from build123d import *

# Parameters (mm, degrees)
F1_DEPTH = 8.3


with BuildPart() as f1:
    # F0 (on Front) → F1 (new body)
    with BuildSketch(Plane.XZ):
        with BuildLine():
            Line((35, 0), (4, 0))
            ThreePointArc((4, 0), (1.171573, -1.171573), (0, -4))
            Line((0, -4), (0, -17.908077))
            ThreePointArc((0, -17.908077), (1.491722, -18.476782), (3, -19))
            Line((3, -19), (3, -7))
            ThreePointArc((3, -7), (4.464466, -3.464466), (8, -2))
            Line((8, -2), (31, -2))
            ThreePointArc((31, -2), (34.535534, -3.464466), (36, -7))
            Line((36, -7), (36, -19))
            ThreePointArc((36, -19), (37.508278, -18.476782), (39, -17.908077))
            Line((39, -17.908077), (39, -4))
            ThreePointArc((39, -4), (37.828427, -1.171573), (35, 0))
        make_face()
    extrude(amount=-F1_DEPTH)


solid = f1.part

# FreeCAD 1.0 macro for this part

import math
import FreeCAD as App
import Part
import Sketcher

V = App.Vector

doc = App.newDocument("Part")
body = doc.addObject("PartDesign::Body", "Body")

sketch1 = body.newObject("Sketcher::SketchObject", "Sketch")
sketch1.AttachmentSupport = (doc.getObject("XZ_Plane"), [""])
sketch1.MapMode = "FlatFace"
sketch1.addGeometry([
    Part.LineSegment(V(35, 0, 0), V(4, 0, 0)),
    Part.ArcOfCircle(Part.Circle(V(4, -4, 0), V(0, 0, 1), 4), math.radians(90.000006), math.radians(179.999994)),
    Part.LineSegment(V(0, -4, 0), V(0, -17.908077, 0)),
    Part.ArcOfCircle(Part.Circle(V(19.499748, 30.999307, 0), V(0, 0, 1), 52.651424), math.radians(-111.737548), math.radians(-108.262866)),
    Part.LineSegment(V(3, -19, 0), V(3, -7, 0)),
    Part.ArcOfCircle(Part.Circle(V(8, -7, 0), V(0, 0, 1), 5), math.radians(89.999996), math.radians(180.000004)),
    Part.LineSegment(V(8, -2, 0), V(31, -2, 0)),
    Part.ArcOfCircle(Part.Circle(V(31, -7, 0), V(0, 0, 1), 5), math.radians(-0.000004), math.radians(90.000004)),
    Part.LineSegment(V(36, -7, 0), V(36, -19, 0)),
    Part.ArcOfCircle(Part.Circle(V(19.500252, 30.999307, 0), V(0, 0, 1), 52.651424), math.radians(-71.737134), math.radians(-68.262452)),
    Part.LineSegment(V(39, -17.908077, 0), V(39, -4, 0)),
    Part.ArcOfCircle(Part.Circle(V(35, -4, 0), V(0, 0, 1), 4), math.radians(0.000006), math.radians(89.999994)),
], False)
sketch1.addConstraint([
    Sketcher.Constraint("Tangent", 0, 2, 1, 1),
    Sketcher.Constraint("Tangent", 1, 2, 2, 1),
    Sketcher.Constraint("Coincident", 2, 2, 3, 1),
    Sketcher.Constraint("Coincident", 3, 2, 4, 1),
    Sketcher.Constraint("Tangent", 4, 2, 5, 2),
    Sketcher.Constraint("Tangent", 5, 1, 6, 1),
    Sketcher.Constraint("Tangent", 6, 2, 7, 2),
    Sketcher.Constraint("Tangent", 7, 1, 8, 1),
    Sketcher.Constraint("Coincident", 8, 2, 9, 1),
    Sketcher.Constraint("Coincident", 9, 2, 10, 1),
    Sketcher.Constraint("Tangent", 10, 2, 11, 1),
    Sketcher.Constraint("Tangent", 11, 2, 0, 1),
    Sketcher.Constraint("Horizontal", 0),
    Sketcher.Constraint("Vertical", 2),
    Sketcher.Constraint("Vertical", 4),
    Sketcher.Constraint("Horizontal", 6),
    Sketcher.Constraint("Vertical", 8),
    Sketcher.Constraint("Vertical", 10),
    Sketcher.Constraint("Equal", 5, 7),
    Sketcher.Constraint("Equal", 3, 9),
    Sketcher.Constraint("Equal", 1, 11),
    Sketcher.Constraint("PointOnObject", 0, 2, -1),
    Sketcher.Constraint("PointOnObject", 1, 2, -2),
    Sketcher.Constraint("Horizontal", 3, 3, 9, 3),
    Sketcher.Constraint("Horizontal", 3, 2, 8, 2),
    Sketcher.Constraint("Horizontal", 2, 2, 9, 2),
    Sketcher.Constraint("Radius", 1, 4.0),
    Sketcher.Constraint("Radius", 5, 5.0),
    Sketcher.Constraint("DistanceX", 0, 2, 0, 1, 31.0),
    Sketcher.Constraint("DistanceX", 6, 1, 6, 2, 23.0),
    Sketcher.Constraint("DistanceY", 4, 1, 4, 2, 12.0),
    Sketcher.Constraint("DistanceY", 5, 3, -1, 1, 7.0),
    Sketcher.Constraint("Radius", 3, 52.651424),
    Sketcher.Constraint("DistanceY", 2, 2, 2, 1, 13.908077),
])
pad1 = body.newObject("PartDesign::Pad", "Pad")
pad1.Profile = sketch1
pad1.Length = 8.3
pad1.Reversed = True

doc.recompute()
